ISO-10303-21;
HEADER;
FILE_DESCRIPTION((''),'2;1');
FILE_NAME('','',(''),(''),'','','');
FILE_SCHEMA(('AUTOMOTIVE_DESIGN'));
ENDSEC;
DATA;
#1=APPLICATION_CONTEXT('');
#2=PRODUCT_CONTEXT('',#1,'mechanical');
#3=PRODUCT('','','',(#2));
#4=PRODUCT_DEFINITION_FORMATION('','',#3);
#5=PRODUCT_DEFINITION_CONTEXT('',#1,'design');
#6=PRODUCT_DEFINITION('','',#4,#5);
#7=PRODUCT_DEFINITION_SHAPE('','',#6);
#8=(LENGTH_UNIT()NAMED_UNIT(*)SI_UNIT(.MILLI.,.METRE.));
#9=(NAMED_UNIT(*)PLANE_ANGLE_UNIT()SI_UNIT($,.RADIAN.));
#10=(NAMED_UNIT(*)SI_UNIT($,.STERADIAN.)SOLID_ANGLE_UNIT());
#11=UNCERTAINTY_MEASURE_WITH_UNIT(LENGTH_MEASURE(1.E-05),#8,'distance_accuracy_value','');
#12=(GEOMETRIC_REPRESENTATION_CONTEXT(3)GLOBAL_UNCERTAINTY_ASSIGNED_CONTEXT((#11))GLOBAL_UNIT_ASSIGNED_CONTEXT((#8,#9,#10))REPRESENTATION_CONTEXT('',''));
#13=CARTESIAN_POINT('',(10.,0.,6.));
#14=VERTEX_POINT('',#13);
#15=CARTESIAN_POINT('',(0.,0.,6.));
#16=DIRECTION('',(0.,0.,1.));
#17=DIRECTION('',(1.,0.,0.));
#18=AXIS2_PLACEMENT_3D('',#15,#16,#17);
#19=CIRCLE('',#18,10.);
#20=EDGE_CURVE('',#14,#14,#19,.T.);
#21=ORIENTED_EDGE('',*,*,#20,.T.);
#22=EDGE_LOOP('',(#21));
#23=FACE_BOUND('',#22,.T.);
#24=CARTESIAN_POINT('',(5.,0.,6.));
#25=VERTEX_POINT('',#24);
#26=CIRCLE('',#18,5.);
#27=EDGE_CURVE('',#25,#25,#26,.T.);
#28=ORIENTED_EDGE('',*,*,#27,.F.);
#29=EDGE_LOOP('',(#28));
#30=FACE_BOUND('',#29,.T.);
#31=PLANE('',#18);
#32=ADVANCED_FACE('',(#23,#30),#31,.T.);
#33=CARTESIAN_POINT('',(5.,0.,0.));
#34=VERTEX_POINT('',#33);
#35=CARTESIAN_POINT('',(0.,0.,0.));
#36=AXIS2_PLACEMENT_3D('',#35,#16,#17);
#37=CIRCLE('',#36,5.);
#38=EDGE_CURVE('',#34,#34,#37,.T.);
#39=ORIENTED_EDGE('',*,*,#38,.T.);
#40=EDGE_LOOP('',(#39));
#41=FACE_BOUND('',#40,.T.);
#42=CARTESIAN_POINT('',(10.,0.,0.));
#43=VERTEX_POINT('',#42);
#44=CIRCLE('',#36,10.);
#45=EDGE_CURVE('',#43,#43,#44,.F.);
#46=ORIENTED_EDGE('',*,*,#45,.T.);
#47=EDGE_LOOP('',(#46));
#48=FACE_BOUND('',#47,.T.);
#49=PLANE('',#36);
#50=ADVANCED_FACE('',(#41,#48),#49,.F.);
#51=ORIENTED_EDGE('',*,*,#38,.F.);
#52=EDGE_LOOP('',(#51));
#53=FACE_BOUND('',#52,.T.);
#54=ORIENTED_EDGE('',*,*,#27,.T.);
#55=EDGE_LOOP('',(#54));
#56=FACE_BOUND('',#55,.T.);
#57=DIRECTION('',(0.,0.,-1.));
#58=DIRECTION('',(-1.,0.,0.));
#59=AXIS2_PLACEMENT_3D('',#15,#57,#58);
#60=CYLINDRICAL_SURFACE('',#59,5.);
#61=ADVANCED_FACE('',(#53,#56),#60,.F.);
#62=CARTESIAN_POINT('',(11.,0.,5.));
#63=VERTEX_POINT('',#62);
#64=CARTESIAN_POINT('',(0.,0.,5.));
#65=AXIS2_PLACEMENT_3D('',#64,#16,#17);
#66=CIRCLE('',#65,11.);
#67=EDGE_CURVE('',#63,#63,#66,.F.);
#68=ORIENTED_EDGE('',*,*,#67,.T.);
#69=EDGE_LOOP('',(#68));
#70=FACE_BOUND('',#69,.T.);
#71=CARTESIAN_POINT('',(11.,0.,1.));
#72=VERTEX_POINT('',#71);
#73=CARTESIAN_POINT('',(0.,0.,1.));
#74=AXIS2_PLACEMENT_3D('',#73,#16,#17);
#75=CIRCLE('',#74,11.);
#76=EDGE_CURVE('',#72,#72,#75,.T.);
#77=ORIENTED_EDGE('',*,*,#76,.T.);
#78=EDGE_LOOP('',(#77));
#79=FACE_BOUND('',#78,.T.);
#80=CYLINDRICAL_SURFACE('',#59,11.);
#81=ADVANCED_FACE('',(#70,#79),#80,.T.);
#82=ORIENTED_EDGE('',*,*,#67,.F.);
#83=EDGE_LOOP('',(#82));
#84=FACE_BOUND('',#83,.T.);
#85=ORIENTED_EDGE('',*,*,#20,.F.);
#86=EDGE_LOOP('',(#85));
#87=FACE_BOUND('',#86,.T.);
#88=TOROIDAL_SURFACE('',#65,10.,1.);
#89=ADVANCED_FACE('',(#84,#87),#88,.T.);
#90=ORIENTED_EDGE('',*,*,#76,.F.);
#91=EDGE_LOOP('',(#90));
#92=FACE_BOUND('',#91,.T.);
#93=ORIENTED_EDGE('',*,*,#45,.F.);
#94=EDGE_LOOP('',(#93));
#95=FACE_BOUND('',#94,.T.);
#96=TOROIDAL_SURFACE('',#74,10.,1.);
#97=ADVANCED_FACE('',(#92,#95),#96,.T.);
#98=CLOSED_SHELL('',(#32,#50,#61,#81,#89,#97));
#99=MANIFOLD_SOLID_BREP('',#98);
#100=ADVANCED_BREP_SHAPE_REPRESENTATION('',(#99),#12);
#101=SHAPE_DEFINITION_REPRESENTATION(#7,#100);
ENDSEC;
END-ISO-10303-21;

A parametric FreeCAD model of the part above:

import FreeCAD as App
import Part
import Sketcher
from FreeCAD import Vector


def edges_at(feature, points):
    """Names of the edges that pass closest to the given points."""
    edges = feature.Shape.Edges
    near = lambda p: min(range(len(edges)), key=lambda i: edges[i].distToShape(Part.Vertex(*p))[0])
    return sorted({f"Edge{near(p) + 1}" for p in points})

doc = App.newDocument("Part")
body = doc.addObject("PartDesign::Body", "Body")

sketch1 = body.newObject("Sketcher::SketchObject", "Sketch")
sketch1.AttachmentSupport = (doc.getObject("XY_Plane"), [""])
sketch1.MapMode = "FlatFace"
sketch1.addGeometry(Part.Circle(Vector(0, 0, 0), Vector(0, 0, 1), 11), False)
sketch1.addGeometry(Part.Circle(Vector(0, 0, 0), Vector(0, 0, 1), 5), False)
sketch1.addConstraint(Sketcher.Constraint("Coincident", 0, 3, -1, 1))
sketch1.addConstraint(Sketcher.Constraint("Coincident", 1, 3, -1, 1))
sketch1.addConstraint(Sketcher.Constraint("Diameter", 0, 22.0))
sketch1.addConstraint(Sketcher.Constraint("Diameter", 1, 10.0))
pad1 = body.newObject("PartDesign::Pad", "Pad")
pad1.Profile = sketch1
pad1.Length = 6
doc.recompute()

fillet = body.newObject("PartDesign::Fillet", "Fillet")
fillet.Base = (pad1, edges_at(pad1, [(-11, 0, 0), (-11, 0, 6)]))
fillet.Radius = 1

doc.recompute()
